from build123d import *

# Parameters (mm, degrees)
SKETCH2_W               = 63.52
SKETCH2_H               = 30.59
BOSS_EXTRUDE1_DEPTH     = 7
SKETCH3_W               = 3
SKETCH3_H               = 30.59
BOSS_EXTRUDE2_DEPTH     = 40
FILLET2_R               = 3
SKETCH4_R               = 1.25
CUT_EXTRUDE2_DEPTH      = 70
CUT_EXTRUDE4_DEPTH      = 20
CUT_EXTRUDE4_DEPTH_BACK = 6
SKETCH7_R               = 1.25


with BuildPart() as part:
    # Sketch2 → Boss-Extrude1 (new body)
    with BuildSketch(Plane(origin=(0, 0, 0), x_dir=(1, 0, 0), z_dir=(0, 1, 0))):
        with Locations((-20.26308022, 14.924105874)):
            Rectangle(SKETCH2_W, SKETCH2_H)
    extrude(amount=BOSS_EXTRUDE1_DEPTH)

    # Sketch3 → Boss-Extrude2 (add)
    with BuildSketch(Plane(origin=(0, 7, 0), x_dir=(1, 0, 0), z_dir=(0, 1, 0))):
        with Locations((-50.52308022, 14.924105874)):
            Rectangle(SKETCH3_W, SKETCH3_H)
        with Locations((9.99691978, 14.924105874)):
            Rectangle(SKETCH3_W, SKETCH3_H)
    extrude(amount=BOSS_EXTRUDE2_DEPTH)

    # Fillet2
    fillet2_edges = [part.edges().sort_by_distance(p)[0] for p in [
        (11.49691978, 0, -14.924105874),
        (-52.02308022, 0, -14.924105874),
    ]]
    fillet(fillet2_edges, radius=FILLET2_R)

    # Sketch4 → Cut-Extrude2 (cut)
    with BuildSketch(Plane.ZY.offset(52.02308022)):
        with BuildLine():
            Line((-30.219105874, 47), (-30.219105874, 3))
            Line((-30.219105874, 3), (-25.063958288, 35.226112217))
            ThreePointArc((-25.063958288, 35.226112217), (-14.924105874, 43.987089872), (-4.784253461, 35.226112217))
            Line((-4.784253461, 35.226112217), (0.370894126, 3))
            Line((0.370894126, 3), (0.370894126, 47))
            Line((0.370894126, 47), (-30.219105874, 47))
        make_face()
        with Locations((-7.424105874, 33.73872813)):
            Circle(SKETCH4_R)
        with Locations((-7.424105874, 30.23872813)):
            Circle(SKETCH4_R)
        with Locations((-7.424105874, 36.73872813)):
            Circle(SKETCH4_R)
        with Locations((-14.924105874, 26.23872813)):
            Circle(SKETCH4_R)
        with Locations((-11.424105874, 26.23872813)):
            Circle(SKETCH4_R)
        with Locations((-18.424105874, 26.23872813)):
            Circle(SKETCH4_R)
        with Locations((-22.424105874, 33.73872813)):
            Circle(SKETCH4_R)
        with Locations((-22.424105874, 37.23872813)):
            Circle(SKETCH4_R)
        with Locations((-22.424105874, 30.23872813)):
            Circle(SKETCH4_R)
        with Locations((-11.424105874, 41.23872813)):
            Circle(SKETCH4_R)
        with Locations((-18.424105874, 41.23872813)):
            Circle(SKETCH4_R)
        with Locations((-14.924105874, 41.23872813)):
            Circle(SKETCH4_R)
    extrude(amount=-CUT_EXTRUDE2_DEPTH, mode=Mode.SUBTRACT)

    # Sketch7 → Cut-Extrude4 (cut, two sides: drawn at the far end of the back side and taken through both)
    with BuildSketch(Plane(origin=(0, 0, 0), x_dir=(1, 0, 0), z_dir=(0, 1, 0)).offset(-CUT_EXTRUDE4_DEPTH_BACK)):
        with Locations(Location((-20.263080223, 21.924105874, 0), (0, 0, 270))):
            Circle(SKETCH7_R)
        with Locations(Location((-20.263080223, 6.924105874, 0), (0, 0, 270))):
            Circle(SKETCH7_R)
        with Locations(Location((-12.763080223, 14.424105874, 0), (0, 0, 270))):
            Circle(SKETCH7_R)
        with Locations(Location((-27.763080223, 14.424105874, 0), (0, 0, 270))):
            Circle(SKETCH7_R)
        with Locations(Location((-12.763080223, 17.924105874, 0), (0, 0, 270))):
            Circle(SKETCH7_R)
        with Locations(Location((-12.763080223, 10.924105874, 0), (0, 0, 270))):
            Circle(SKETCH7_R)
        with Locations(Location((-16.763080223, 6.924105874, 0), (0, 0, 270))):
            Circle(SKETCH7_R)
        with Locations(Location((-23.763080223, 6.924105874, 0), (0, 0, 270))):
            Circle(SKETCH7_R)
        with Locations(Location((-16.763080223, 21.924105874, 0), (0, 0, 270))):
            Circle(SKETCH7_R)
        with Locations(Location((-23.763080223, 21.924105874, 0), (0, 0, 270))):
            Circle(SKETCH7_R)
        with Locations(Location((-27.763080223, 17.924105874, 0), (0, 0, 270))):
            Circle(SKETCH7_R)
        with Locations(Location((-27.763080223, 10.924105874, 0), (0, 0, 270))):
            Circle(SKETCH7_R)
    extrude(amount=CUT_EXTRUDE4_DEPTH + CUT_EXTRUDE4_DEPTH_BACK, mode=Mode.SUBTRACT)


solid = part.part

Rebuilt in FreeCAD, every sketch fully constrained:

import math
import FreeCAD as App
import Part
import Sketcher

V = App.Vector
Q = App.Units.Quantity


def edges_at(feature, points):
    """Names of the edges that pass closest to the given points."""
    edges = feature.Shape.Edges
    near = lambda p: min(range(len(edges)), key=lambda i: edges[i].distToShape(Part.Vertex(*p))[0])
    return sorted({f"Edge{near(p) + 1}" for p in points})

doc = App.newDocument("Part")
body = doc.addObject("PartDesign::Body", "Body")

# Sketch on XZ plane
sketch1 = body.newObject("Sketcher::SketchObject", "Sketch")
sketch1.AttachmentSupport = (doc.getObject("XZ_Plane"), [""])
sketch1.MapMode = "FlatFace"
sketch1.addGeometry([
    Part.LineSegment(V(-52, -30, 0), V(-52, 0, 0)),
    Part.LineSegment(V(-52, 0, 0), V(11, 0, 0)),
    Part.LineSegment(V(11, 0, 0), V(11, -30, 0)),
    Part.LineSegment(V(11, -30, 0), V(-52, -30, 0)),
], False)
sketch1.addConstraint([
    Sketcher.Constraint("Coincident", 0, 2, 1, 1),
    Sketcher.Constraint("Coincident", 1, 2, 2, 1),
    Sketcher.Constraint("Coincident", 2, 2, 3, 1),
    Sketcher.Constraint("Coincident", 3, 2, 0, 1),
    Sketcher.Constraint("Vertical", 0),
    Sketcher.Constraint("Horizontal", 1),
    Sketcher.Constraint("Vertical", 2),
    Sketcher.Constraint("Horizontal", 3),
    Sketcher.Constraint("DistanceX", 1, 1, 1, 2, Q("63.52 mm")),
    Sketcher.Constraint("DistanceY", 0, 1, 0, 2, Q("30.59 mm")),
    Sketcher.Constraint("DistanceX", 0, 2, -1, 1, Q("52.02308 mm")),
    Sketcher.Constraint("DistanceY", -1, 1, 0, 2, Q("0.370894 mm")),
])
pad1 = body.newObject("PartDesign::Pad", "Pad")
pad1.Profile = sketch1
pad1.Length = 7
pad1.Reversed = True

# Sketch on XZ plane
sketch2 = body.newObject("Sketcher::SketchObject", "Sketch001")
sketch2.AttachmentSupport = (doc.getObject("XZ_Plane"), [""])
sketch2.MapMode = "FlatFace"
sketch2.AttachmentOffset = App.Placement(V(0, 0, -7), App.Rotation())
sketch2.addGeometry([
    Part.LineSegment(V(-52, -30.2, 0), V(-52, 0.4, 0)),  # 0
    Part.LineSegment(V(-52, 0.4, 0), V(-49, 0.4, 0)),  # 1
    Part.LineSegment(V(-49, 0.4, 0), V(-49, -30.2, 0)),  # 2
    Part.LineSegment(V(-49, -30.2, 0), V(-52, -30.2, 0)),  # 3
    Part.LineSegment(V(8.5, -30.2, 0), V(8.5, 0.4, 0)),  # 4
    Part.LineSegment(V(8.5, 0.4, 0), V(11.5, 0.4, 0)),  # 5
    Part.LineSegment(V(11.5, 0.4, 0), V(11.5, -30.2, 0)),  # 6
    Part.LineSegment(V(11.5, -30.2, 0), V(8.5, -30.2, 0)),  # 7
], False)
sketch2.addConstraint([
    Sketcher.Constraint("Coincident", 0, 2, 1, 1),
    Sketcher.Constraint("Coincident", 1, 2, 2, 1),
    Sketcher.Constraint("Coincident", 2, 2, 3, 1),
    Sketcher.Constraint("Coincident", 3, 2, 0, 1),
    Sketcher.Constraint("Coincident", 4, 2, 5, 1),
    Sketcher.Constraint("Coincident", 5, 2, 6, 1),
    Sketcher.Constraint("Coincident", 6, 2, 7, 1),
    Sketcher.Constraint("Coincident", 7, 2, 4, 1),
    Sketcher.Constraint("Vertical", 0),
    Sketcher.Constraint("Horizontal", 1),
    Sketcher.Constraint("Vertical", 2),
    Sketcher.Constraint("Horizontal", 3),
    Sketcher.Constraint("Vertical", 4),
    Sketcher.Constraint("Horizontal", 5),
    Sketcher.Constraint("Vertical", 6),
    Sketcher.Constraint("Horizontal", 7),
    Sketcher.Constraint("Horizontal", 1, 2, 4, 2),
    Sketcher.Constraint("Horizontal", 3, 2, 6, 2),
    Sketcher.Constraint("Equal", 3, 5),
    Sketcher.Constraint("DistanceX", 1, 1, 1, 2, Q("3 mm")),
    Sketcher.Constraint("DistanceY", 0, 1, 0, 2, Q("30.59 mm")),
    Sketcher.Constraint("DistanceX", 1, 2, 4, 2, Q("57.52 mm")),
    Sketcher.Constraint("DistanceX", 0, 2, -1, 1, Q("52.02308 mm")),
    Sketcher.Constraint("DistanceY", -1, 1, 0, 2, Q("0.370894 mm")),
])
pad2 = body.newObject("PartDesign::Pad", "Pad001")
pad2.Profile = sketch2
pad2.Length = 40
pad2.Reversed = True
doc.recompute()

fillet = body.newObject("PartDesign::Fillet", "Fillet")
fillet.Base = (pad2, edges_at(pad2, [(11.497, 0, -14.924), (-52.023, 0, -14.924)]))
fillet.Radius = 3

# Sketch on YZ plane
sketch3 = body.newObject("Sketcher::SketchObject", "Sketch002")
sketch3.AttachmentSupport = (doc.getObject("YZ_Plane"), [""])
sketch3.MapMode = "FlatFace"
sketch3.AttachmentOffset = App.Placement(V(0, 0, -52.02308), App.Rotation())
sketch3.addGeometry([
    Part.LineSegment(V(47, -30.2, 0), V(3, -30.2, 0)),  # 0
    Part.LineSegment(V(3, -30.2, 0), V(35.2, -25.1, 0)),  # 1
    Part.ArcOfCircle(Part.Circle(V(33.7, -14.9, 0), V(0, 0, 1), 10.2), math.radians(-82), math.radians(82)),  # 2
    Part.LineSegment(V(35.2, -4.8, 0), V(3, 0.4, 0)),  # 3
    Part.LineSegment(V(3, 0.4, 0), V(47, 0.4, 0)),  # 4
    Part.LineSegment(V(47, 0.4, 0), V(47, -30.2, 0)),  # 5
    Part.Circle(V(33.7, -7.4, 0), V(0, 0, 1), 1.2),  # 6
    Part.Circle(V(30.2, -7.4, 0), V(0, 0, 1), 1.2),  # 7
    Part.Circle(V(36.7, -7.4, 0), V(0, 0, 1), 1.2),  # 8
    Part.Circle(V(26.2, -14.9, 0), V(0, 0, 1), 1.2),  # 9
    Part.Circle(V(26.2, -11.4, 0), V(0, 0, 1), 1.2),  # 10
    Part.Circle(V(26.2, -18.4, 0), V(0, 0, 1), 1.2),  # 11
    Part.Circle(V(33.7, -22.4, 0), V(0, 0, 1), 1.2),  # 12
    Part.Circle(V(37.2, -22.4, 0), V(0, 0, 1), 1.2),  # 13
    Part.Circle(V(30.2, -22.4, 0), V(0, 0, 1), 1.2),  # 14
    Part.Circle(V(41.2, -11.4, 0), V(0, 0, 1), 1.2),  # 15
    Part.Circle(V(41.2, -18.4, 0), V(0, 0, 1), 1.2),  # 16
    Part.Circle(V(41.2, -14.9, 0), V(0, 0, 1), 1.2),  # 17
], False)
sketch3.addConstraint([
    Sketcher.Constraint("Coincident", 0, 2, 1, 1),
    Sketcher.Constraint("Coincident", 1, 2, 2, 1),
    Sketcher.Constraint("Coincident", 2, 2, 3, 1),
    Sketcher.Constraint("Coincident", 3, 2, 4, 1),
    Sketcher.Constraint("Coincident", 4, 2, 5, 1),
    Sketcher.Constraint("Coincident", 5, 2, 0, 1),
    Sketcher.Constraint("Horizontal", 0),
    Sketcher.Constraint("Horizontal", 4),
    Sketcher.Constraint("Vertical", 5),
    Sketcher.Constraint("Equal", 6, 7),
    Sketcher.Constraint("Equal", 7, 8),
    Sketcher.Constraint("Equal", 8, 9),
    Sketcher.Constraint("Equal", 9, 10),
    Sketcher.Constraint("Equal", 10, 11),
    Sketcher.Constraint("Equal", 11, 12),
    Sketcher.Constraint("Equal", 12, 13),
    Sketcher.Constraint("Equal", 13, 14),
    Sketcher.Constraint("Equal", 14, 15),
    Sketcher.Constraint("Equal", 15, 16),
    Sketcher.Constraint("Equal", 16, 17),
    Sketcher.Constraint("Horizontal", 6, 3, 7, 3),
    Sketcher.Constraint("Horizontal", 7, 3, 8, 3),
    Sketcher.Constraint("Horizontal", 2, 3, 9, 3),
    Sketcher.Constraint("Horizontal", 12, 3, 13, 3),
    Sketcher.Constraint("Horizontal", 13, 3, 14, 3),
    Sketcher.Constraint("Horizontal", 10, 3, 15, 3),
    Sketcher.Constraint("Horizontal", 11, 3, 16, 3),
    Sketcher.Constraint("Horizontal", 9, 3, 17, 3),
    Sketcher.Constraint("Vertical", 2, 3, 6, 3),
    Sketcher.Constraint("Vertical", 9, 3, 10, 3),
    Sketcher.Constraint("Vertical", 10, 3, 11, 3),
    Sketcher.Constraint("Vertical", 6, 3, 12, 3),
    Sketcher.Constraint("Vertical", 7, 3, 14, 3),
    Sketcher.Constraint("Vertical", 15, 3, 16, 3),
    Sketcher.Constraint("Vertical", 16, 3, 17, 3),
    Sketcher.Constraint("Vertical", 1, 2, 2, 2),
    Sketcher.Constraint("Vertical", 0, 2, 3, 2),
    Sketcher.Constraint("Equal", 1, 3),
    Sketcher.Constraint("Diameter", 6, Q("2.5 mm")),
    Sketcher.Constraint("DistanceX", 0, 2, 0, 1, Q("44 mm")),
    Sketcher.Constraint("DistanceX", -1, 1, 0, 2, Q("3 mm")),
    Sketcher.Constraint("DistanceX", 6, 3, 8, 3, Q("3 mm")),
    Sketcher.Constraint("DistanceX", 9, 3, 7, 3, Q("4 mm")),
    Sketcher.Constraint("DistanceY", 10, 3, 7, 3, Q("4 mm")),
    Sketcher.Constraint("DistanceY", 11, 3, 10, 3, Q("7 mm")),
    Sketcher.Constraint("DistanceY", 12, 3, 11, 3, Q("4 mm")),
    Sketcher.Constraint("DistanceX", 11, 3, 13, 3, Q("11 mm")),
    Sketcher.Constraint("DistanceX", 13, 3, 15, 3, Q("4 mm")),
    Sketcher.Constraint("DistanceY", 5, 2, 5, 1, Q("30.59 mm")),
    Sketcher.Constraint("DistanceY", 2, 3, 6, 3, Q("7.5 mm")),
    Sketcher.Constraint("DistanceX", 7, 3, 6, 3, Q("3.5 mm")),
    Sketcher.Constraint("Radius", 2, Q("10.248362 mm")),
    Sketcher.Constraint("DistanceX", -1, 1, 2, 3, Q("33.738728 mm")),
    Sketcher.Constraint("DistanceY", 1, 2, -1, 1, Q("25.063958 mm")),
    Sketcher.Constraint("Distance", 1, Q("32.635837 mm")),
])
pocket1 = body.newObject("PartDesign::Pocket", "Pocket")
pocket1.Profile = sketch3
pocket1.Length = 70
pocket1.Reversed = True

# Sketch on XZ plane
sketch4 = body.newObject("Sketcher::SketchObject", "Sketch003")
sketch4.AttachmentSupport = (doc.getObject("XZ_Plane"), [""])
sketch4.MapMode = "FlatFace"
sketch4.addGeometry([
    Part.Circle(V(-20.3, -21.9, 0), V(0, 0, 1), 1.2),  # 0
    Part.Circle(V(-20.3, -6.9, 0), V(0, 0, 1), 1.2),  # 1
    Part.Circle(V(-12.8, -14.4, 0), V(0, 0, 1), 1.2),  # 2
    Part.Circle(V(-27.8, -14.4, 0), V(0, 0, 1), 1.2),  # 3
    Part.Circle(V(-12.8, -17.9, 0), V(0, 0, 1), 1.2),  # 4
    Part.Circle(V(-12.8, -10.9, 0), V(0, 0, 1), 1.2),  # 5
    Part.Circle(V(-16.8, -6.9, 0), V(0, 0, 1), 1.2),  # 6
    Part.Circle(V(-23.8, -6.9, 0), V(0, 0, 1), 1.2),  # 7
    Part.Circle(V(-16.8, -21.9, 0), V(0, 0, 1), 1.2),  # 8
    Part.Circle(V(-23.8, -21.9, 0), V(0, 0, 1), 1.2),  # 9
    Part.Circle(V(-27.8, -17.9, 0), V(0, 0, 1), 1.2),  # 10
    Part.Circle(V(-27.8, -10.9, 0), V(0, 0, 1), 1.2),  # 11
], False)
sketch4.addConstraint([
    Sketcher.Constraint("Equal", 0, 1),
    Sketcher.Constraint("Equal", 1, 2),
    Sketcher.Constraint("Equal", 2, 3),
    Sketcher.Constraint("Equal", 3, 4),
    Sketcher.Constraint("Equal", 4, 5),
    Sketcher.Constraint("Equal", 5, 6),
    Sketcher.Constraint("Equal", 6, 7),
    Sketcher.Constraint("Equal", 7, 8),
    Sketcher.Constraint("Equal", 8, 9),
    Sketcher.Constraint("Equal", 9, 10),
    Sketcher.Constraint("Equal", 10, 11),
    Sketcher.Constraint("Horizontal", 2, 3, 3, 3),
    Sketcher.Constraint("Horizontal", 1, 3, 6, 3),
    Sketcher.Constraint("Horizontal", 6, 3, 7, 3),
    Sketcher.Constraint("Horizontal", 0, 3, 8, 3),
    Sketcher.Constraint("Horizontal", 8, 3, 9, 3),
    Sketcher.Constraint("Horizontal", 4, 3, 10, 3),
    Sketcher.Constraint("Horizontal", 5, 3, 11, 3),
    Sketcher.Constraint("Vertical", 0, 3, 1, 3),
    Sketcher.Constraint("Vertical", 2, 3, 4, 3),
    Sketcher.Constraint("Vertical", 4, 3, 5, 3),
    Sketcher.Constraint("Vertical", 6, 3, 8, 3),
    Sketcher.Constraint("Vertical", 7, 3, 9, 3),
    Sketcher.Constraint("Vertical", 3, 3, 10, 3),
    Sketcher.Constraint("Vertical", 10, 3, 11, 3),
    Sketcher.Constraint("Diameter", 0, Q("2.5 mm")),
    Sketcher.Constraint("DistanceY", 0, 3, 1, 3, Q("15 mm")),
    Sketcher.Constraint("DistanceX", 3, 3, 2, 3, Q("15 mm")),
    Sketcher.Constraint("DistanceY", 0, 3, 4, 3, Q("4 mm")),
    Sketcher.Constraint("DistanceY", 4, 3, 5, 3, Q("7 mm")),
    Sketcher.Constraint("DistanceX", 6, 3, 5, 3, Q("4 mm")),
    Sketcher.Constraint("DistanceX", 7, 3, 6, 3, Q("7 mm")),
    Sketcher.Constraint("DistanceX", 0, 3, 2, 3, Q("7.5 mm")),
    Sketcher.Constraint("DistanceY", 0, 3, 2, 3, Q("7.5 mm")),
    Sketcher.Constraint("DistanceX", 0, 3, -1, 1, Q("20.26308 mm")),
    Sketcher.Constraint("DistanceY", 0, 3, -1, 1, Q("21.924106 mm")),
])
pocket2 = body.newObject("PartDesign::Pocket", "Pocket001")
pocket2.Profile = sketch4
pocket2.Type = "ThroughAll"
pocket2.Midplane = True

doc.recompute()
